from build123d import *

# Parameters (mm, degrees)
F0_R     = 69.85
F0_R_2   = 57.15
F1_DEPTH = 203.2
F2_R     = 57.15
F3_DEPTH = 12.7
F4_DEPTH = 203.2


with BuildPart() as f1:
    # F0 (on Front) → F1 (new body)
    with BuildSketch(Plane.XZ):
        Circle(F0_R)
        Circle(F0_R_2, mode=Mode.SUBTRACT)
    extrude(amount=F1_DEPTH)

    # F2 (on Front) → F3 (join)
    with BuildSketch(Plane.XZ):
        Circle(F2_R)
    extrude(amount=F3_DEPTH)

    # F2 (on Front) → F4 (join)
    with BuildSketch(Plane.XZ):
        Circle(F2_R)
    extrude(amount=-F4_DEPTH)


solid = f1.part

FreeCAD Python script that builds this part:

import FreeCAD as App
import Part
import Sketcher
Q = App.Units.Quantity

doc = App.newDocument("Part")
body = doc.addObject("PartDesign::Body", "Body")

sketch1 = doc.addObject("Sketcher::SketchObject", "Sketch")
body.addObject(sketch1)
sketch1.AttachmentSupport = (doc.XZ_Plane, [""])
sketch1.MapMode = "FlatFace"
sketch1.addGeometry([
    Part.Circle(App.Vector(0, 0, 0), App.Vector(0, 0, 1), 70),
    Part.Circle(App.Vector(0, 0, 0), App.Vector(0, 0, 1), 57),
], False)
sketch1.addConstraint([
    Sketcher.Constraint("Coincident", 0, 3, -1, 1),
    Sketcher.Constraint("Coincident", 1, 3, -1, 1),
    Sketcher.Constraint("Diameter", 0, Q("5.5 in")),
    Sketcher.Constraint("Diameter", 1, Q("4.5 in")),
])
pad1 = doc.addObject("PartDesign::Pad", "Pad")
body.addObject(pad1)
pad1.Profile = sketch1
pad1.Length = Q("8 in")

sketch2 = doc.addObject("Sketcher::SketchObject", "Sketch001")
body.addObject(sketch2)
sketch2.AttachmentSupport = (doc.XZ_Plane, [""])
sketch2.MapMode = "FlatFace"
sketch2.addGeometry(Part.Circle(App.Vector(0, 0, 0), App.Vector(0, 0, 1), 57), False)
sketch2.addConstraint([
    Sketcher.Constraint("Coincident", 0, 3, -1, 1),
    Sketcher.Constraint("Diameter", 0, Q("4.5 in")),
])
pad2 = doc.addObject("PartDesign::Pad", "Pad001")
body.addObject(pad2)
pad2.Profile = sketch2
pad2.Length = Q("0.5 in")

sketch3 = doc.addObject("Sketcher::SketchObject", "Sketch002")
body.addObject(sketch3)
sketch3.AttachmentSupport = (doc.XZ_Plane, [""])
sketch3.MapMode = "FlatFace"
sketch3.addGeometry(Part.Circle(App.Vector(0, 0, 0), App.Vector(0, 0, 1), 57), False)
sketch3.addConstraint([
    Sketcher.Constraint("Coincident", 0, 3, -1, 1),
    Sketcher.Constraint("Diameter", 0, Q("4.5 in")),
])
pad3 = doc.addObject("PartDesign::Pad", "Pad002")
body.addObject(pad3)
pad3.Profile = sketch3
pad3.Length = Q("8 in")
pad3.Reversed = True

doc.recompute()
